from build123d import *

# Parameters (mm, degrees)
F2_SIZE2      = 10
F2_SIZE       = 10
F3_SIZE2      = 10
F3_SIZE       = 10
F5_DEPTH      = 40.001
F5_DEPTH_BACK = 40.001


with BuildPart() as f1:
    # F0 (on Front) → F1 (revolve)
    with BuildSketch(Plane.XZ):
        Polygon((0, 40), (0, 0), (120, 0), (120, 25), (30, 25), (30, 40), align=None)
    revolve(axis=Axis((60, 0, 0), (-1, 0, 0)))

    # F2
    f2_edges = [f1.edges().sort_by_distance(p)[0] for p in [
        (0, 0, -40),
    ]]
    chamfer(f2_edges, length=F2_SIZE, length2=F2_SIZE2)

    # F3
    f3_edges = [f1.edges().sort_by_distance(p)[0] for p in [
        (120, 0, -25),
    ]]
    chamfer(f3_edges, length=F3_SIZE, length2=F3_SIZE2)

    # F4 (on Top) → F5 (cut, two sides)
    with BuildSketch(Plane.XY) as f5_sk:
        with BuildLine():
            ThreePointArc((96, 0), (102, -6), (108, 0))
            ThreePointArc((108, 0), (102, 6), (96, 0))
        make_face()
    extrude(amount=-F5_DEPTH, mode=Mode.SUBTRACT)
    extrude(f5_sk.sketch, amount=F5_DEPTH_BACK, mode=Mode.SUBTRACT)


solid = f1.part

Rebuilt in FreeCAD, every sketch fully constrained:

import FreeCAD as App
import Part
import Sketcher
Q = App.Units.Quantity


def edges_at(feature, points):
    """Names of the edges that pass closest to the given points."""
    edges = feature.Shape.Edges
    near = lambda p: min(range(len(edges)), key=lambda i: edges[i].distToShape(Part.Vertex(*p))[0])
    return sorted({f"Edge{near(p) + 1}" for p in points})


def add_polygon(sketch, points):
    """Adds a closed chain of lines whose ends are joined by coincident constraints."""
    first, n = sketch.GeometryCount, len(points)
    for a, b in zip(points, points[1:] + points[:1]):
        sketch.addGeometry(Part.LineSegment(App.Vector(*a, 0), App.Vector(*b, 0)), False)
    for i in range(n):
        sketch.addConstraint(Sketcher.Constraint("Coincident", first + i, 2, first + (i + 1) % n, 1))

doc = App.newDocument("Part")
body = doc.addObject("PartDesign::Body", "Body")

sketch1 = doc.addObject("Sketcher::SketchObject", "Sketch")
body.addObject(sketch1)
sketch1.AttachmentSupport = (doc.XZ_Plane, [""])
sketch1.MapMode = "FlatFace"
add_polygon(sketch1, [(0, 40), (0, 0), (120, 0), (120, 25), (30, 25), (30, 40)])
sketch1.addConstraint(Sketcher.Constraint("Vertical", 0))
sketch1.addConstraint(Sketcher.Constraint("Horizontal", 1))
sketch1.addConstraint(Sketcher.Constraint("Vertical", 2))
sketch1.addConstraint(Sketcher.Constraint("Horizontal", 3))
sketch1.addConstraint(Sketcher.Constraint("Vertical", 4))
sketch1.addConstraint(Sketcher.Constraint("Horizontal", 5))
sketch1.addConstraint(Sketcher.Constraint("Coincident", 0, 2, -1, 1))
sketch1.addConstraint(Sketcher.Constraint("DistanceX", 1, 1, 1, 2, Q("120 mm")))
sketch1.addConstraint(Sketcher.Constraint("DistanceX", 3, 2, 3, 1, Q("90 mm")))
sketch1.addConstraint(Sketcher.Constraint("DistanceY", 0, 2, 0, 1, Q("40 mm")))
sketch1.addConstraint(Sketcher.Constraint("DistanceY", 2, 1, 2, 2, Q("25 mm")))
revolution = doc.addObject("PartDesign::Revolution", "Revolution")
body.addObject(revolution)
revolution.Profile = sketch1
revolution.ReferenceAxis = (sketch1, ["H_Axis"])
revolution.Angle = 360
doc.recompute()

chamfer = doc.addObject("PartDesign::Chamfer", "Chamfer")
body.addObject(chamfer)
chamfer.Base = (revolution, edges_at(revolution, [(0, 0, -40)]))
chamfer.ChamferType = "Two distances"
chamfer.Size = 10
chamfer.Size2 = 10
doc.recompute()

chamfer2 = doc.addObject("PartDesign::Chamfer", "Chamfer001")
body.addObject(chamfer2)
chamfer2.Base = (chamfer, edges_at(chamfer, [(120, 0, -25)]))
chamfer2.ChamferType = "Two distances"
chamfer2.Size = 10
chamfer2.Size2 = 10

sketch2 = doc.addObject("Sketcher::SketchObject", "Sketch001")
body.addObject(sketch2)
sketch2.AttachmentSupport = (doc.XY_Plane, [""])
sketch2.MapMode = "FlatFace"
sketch2.addGeometry(Part.Circle(App.Vector(102, 0, 0), App.Vector(0, 0, 1), 6), False)
sketch2.addConstraint(Sketcher.Constraint("PointOnObject", 0, 3, -1))
sketch2.addConstraint(Sketcher.Constraint("Diameter", 0, Q("12 mm")))
sketch2.addConstraint(Sketcher.Constraint("DistanceX", -1, 1, 0, 3, Q("102 mm")))
pocket1 = doc.addObject("PartDesign::Pocket", "Pocket")
body.addObject(pocket1)
pocket1.Profile = sketch2
pocket1.Type = "ThroughAll"
pocket1.Midplane = True

doc.recompute()
